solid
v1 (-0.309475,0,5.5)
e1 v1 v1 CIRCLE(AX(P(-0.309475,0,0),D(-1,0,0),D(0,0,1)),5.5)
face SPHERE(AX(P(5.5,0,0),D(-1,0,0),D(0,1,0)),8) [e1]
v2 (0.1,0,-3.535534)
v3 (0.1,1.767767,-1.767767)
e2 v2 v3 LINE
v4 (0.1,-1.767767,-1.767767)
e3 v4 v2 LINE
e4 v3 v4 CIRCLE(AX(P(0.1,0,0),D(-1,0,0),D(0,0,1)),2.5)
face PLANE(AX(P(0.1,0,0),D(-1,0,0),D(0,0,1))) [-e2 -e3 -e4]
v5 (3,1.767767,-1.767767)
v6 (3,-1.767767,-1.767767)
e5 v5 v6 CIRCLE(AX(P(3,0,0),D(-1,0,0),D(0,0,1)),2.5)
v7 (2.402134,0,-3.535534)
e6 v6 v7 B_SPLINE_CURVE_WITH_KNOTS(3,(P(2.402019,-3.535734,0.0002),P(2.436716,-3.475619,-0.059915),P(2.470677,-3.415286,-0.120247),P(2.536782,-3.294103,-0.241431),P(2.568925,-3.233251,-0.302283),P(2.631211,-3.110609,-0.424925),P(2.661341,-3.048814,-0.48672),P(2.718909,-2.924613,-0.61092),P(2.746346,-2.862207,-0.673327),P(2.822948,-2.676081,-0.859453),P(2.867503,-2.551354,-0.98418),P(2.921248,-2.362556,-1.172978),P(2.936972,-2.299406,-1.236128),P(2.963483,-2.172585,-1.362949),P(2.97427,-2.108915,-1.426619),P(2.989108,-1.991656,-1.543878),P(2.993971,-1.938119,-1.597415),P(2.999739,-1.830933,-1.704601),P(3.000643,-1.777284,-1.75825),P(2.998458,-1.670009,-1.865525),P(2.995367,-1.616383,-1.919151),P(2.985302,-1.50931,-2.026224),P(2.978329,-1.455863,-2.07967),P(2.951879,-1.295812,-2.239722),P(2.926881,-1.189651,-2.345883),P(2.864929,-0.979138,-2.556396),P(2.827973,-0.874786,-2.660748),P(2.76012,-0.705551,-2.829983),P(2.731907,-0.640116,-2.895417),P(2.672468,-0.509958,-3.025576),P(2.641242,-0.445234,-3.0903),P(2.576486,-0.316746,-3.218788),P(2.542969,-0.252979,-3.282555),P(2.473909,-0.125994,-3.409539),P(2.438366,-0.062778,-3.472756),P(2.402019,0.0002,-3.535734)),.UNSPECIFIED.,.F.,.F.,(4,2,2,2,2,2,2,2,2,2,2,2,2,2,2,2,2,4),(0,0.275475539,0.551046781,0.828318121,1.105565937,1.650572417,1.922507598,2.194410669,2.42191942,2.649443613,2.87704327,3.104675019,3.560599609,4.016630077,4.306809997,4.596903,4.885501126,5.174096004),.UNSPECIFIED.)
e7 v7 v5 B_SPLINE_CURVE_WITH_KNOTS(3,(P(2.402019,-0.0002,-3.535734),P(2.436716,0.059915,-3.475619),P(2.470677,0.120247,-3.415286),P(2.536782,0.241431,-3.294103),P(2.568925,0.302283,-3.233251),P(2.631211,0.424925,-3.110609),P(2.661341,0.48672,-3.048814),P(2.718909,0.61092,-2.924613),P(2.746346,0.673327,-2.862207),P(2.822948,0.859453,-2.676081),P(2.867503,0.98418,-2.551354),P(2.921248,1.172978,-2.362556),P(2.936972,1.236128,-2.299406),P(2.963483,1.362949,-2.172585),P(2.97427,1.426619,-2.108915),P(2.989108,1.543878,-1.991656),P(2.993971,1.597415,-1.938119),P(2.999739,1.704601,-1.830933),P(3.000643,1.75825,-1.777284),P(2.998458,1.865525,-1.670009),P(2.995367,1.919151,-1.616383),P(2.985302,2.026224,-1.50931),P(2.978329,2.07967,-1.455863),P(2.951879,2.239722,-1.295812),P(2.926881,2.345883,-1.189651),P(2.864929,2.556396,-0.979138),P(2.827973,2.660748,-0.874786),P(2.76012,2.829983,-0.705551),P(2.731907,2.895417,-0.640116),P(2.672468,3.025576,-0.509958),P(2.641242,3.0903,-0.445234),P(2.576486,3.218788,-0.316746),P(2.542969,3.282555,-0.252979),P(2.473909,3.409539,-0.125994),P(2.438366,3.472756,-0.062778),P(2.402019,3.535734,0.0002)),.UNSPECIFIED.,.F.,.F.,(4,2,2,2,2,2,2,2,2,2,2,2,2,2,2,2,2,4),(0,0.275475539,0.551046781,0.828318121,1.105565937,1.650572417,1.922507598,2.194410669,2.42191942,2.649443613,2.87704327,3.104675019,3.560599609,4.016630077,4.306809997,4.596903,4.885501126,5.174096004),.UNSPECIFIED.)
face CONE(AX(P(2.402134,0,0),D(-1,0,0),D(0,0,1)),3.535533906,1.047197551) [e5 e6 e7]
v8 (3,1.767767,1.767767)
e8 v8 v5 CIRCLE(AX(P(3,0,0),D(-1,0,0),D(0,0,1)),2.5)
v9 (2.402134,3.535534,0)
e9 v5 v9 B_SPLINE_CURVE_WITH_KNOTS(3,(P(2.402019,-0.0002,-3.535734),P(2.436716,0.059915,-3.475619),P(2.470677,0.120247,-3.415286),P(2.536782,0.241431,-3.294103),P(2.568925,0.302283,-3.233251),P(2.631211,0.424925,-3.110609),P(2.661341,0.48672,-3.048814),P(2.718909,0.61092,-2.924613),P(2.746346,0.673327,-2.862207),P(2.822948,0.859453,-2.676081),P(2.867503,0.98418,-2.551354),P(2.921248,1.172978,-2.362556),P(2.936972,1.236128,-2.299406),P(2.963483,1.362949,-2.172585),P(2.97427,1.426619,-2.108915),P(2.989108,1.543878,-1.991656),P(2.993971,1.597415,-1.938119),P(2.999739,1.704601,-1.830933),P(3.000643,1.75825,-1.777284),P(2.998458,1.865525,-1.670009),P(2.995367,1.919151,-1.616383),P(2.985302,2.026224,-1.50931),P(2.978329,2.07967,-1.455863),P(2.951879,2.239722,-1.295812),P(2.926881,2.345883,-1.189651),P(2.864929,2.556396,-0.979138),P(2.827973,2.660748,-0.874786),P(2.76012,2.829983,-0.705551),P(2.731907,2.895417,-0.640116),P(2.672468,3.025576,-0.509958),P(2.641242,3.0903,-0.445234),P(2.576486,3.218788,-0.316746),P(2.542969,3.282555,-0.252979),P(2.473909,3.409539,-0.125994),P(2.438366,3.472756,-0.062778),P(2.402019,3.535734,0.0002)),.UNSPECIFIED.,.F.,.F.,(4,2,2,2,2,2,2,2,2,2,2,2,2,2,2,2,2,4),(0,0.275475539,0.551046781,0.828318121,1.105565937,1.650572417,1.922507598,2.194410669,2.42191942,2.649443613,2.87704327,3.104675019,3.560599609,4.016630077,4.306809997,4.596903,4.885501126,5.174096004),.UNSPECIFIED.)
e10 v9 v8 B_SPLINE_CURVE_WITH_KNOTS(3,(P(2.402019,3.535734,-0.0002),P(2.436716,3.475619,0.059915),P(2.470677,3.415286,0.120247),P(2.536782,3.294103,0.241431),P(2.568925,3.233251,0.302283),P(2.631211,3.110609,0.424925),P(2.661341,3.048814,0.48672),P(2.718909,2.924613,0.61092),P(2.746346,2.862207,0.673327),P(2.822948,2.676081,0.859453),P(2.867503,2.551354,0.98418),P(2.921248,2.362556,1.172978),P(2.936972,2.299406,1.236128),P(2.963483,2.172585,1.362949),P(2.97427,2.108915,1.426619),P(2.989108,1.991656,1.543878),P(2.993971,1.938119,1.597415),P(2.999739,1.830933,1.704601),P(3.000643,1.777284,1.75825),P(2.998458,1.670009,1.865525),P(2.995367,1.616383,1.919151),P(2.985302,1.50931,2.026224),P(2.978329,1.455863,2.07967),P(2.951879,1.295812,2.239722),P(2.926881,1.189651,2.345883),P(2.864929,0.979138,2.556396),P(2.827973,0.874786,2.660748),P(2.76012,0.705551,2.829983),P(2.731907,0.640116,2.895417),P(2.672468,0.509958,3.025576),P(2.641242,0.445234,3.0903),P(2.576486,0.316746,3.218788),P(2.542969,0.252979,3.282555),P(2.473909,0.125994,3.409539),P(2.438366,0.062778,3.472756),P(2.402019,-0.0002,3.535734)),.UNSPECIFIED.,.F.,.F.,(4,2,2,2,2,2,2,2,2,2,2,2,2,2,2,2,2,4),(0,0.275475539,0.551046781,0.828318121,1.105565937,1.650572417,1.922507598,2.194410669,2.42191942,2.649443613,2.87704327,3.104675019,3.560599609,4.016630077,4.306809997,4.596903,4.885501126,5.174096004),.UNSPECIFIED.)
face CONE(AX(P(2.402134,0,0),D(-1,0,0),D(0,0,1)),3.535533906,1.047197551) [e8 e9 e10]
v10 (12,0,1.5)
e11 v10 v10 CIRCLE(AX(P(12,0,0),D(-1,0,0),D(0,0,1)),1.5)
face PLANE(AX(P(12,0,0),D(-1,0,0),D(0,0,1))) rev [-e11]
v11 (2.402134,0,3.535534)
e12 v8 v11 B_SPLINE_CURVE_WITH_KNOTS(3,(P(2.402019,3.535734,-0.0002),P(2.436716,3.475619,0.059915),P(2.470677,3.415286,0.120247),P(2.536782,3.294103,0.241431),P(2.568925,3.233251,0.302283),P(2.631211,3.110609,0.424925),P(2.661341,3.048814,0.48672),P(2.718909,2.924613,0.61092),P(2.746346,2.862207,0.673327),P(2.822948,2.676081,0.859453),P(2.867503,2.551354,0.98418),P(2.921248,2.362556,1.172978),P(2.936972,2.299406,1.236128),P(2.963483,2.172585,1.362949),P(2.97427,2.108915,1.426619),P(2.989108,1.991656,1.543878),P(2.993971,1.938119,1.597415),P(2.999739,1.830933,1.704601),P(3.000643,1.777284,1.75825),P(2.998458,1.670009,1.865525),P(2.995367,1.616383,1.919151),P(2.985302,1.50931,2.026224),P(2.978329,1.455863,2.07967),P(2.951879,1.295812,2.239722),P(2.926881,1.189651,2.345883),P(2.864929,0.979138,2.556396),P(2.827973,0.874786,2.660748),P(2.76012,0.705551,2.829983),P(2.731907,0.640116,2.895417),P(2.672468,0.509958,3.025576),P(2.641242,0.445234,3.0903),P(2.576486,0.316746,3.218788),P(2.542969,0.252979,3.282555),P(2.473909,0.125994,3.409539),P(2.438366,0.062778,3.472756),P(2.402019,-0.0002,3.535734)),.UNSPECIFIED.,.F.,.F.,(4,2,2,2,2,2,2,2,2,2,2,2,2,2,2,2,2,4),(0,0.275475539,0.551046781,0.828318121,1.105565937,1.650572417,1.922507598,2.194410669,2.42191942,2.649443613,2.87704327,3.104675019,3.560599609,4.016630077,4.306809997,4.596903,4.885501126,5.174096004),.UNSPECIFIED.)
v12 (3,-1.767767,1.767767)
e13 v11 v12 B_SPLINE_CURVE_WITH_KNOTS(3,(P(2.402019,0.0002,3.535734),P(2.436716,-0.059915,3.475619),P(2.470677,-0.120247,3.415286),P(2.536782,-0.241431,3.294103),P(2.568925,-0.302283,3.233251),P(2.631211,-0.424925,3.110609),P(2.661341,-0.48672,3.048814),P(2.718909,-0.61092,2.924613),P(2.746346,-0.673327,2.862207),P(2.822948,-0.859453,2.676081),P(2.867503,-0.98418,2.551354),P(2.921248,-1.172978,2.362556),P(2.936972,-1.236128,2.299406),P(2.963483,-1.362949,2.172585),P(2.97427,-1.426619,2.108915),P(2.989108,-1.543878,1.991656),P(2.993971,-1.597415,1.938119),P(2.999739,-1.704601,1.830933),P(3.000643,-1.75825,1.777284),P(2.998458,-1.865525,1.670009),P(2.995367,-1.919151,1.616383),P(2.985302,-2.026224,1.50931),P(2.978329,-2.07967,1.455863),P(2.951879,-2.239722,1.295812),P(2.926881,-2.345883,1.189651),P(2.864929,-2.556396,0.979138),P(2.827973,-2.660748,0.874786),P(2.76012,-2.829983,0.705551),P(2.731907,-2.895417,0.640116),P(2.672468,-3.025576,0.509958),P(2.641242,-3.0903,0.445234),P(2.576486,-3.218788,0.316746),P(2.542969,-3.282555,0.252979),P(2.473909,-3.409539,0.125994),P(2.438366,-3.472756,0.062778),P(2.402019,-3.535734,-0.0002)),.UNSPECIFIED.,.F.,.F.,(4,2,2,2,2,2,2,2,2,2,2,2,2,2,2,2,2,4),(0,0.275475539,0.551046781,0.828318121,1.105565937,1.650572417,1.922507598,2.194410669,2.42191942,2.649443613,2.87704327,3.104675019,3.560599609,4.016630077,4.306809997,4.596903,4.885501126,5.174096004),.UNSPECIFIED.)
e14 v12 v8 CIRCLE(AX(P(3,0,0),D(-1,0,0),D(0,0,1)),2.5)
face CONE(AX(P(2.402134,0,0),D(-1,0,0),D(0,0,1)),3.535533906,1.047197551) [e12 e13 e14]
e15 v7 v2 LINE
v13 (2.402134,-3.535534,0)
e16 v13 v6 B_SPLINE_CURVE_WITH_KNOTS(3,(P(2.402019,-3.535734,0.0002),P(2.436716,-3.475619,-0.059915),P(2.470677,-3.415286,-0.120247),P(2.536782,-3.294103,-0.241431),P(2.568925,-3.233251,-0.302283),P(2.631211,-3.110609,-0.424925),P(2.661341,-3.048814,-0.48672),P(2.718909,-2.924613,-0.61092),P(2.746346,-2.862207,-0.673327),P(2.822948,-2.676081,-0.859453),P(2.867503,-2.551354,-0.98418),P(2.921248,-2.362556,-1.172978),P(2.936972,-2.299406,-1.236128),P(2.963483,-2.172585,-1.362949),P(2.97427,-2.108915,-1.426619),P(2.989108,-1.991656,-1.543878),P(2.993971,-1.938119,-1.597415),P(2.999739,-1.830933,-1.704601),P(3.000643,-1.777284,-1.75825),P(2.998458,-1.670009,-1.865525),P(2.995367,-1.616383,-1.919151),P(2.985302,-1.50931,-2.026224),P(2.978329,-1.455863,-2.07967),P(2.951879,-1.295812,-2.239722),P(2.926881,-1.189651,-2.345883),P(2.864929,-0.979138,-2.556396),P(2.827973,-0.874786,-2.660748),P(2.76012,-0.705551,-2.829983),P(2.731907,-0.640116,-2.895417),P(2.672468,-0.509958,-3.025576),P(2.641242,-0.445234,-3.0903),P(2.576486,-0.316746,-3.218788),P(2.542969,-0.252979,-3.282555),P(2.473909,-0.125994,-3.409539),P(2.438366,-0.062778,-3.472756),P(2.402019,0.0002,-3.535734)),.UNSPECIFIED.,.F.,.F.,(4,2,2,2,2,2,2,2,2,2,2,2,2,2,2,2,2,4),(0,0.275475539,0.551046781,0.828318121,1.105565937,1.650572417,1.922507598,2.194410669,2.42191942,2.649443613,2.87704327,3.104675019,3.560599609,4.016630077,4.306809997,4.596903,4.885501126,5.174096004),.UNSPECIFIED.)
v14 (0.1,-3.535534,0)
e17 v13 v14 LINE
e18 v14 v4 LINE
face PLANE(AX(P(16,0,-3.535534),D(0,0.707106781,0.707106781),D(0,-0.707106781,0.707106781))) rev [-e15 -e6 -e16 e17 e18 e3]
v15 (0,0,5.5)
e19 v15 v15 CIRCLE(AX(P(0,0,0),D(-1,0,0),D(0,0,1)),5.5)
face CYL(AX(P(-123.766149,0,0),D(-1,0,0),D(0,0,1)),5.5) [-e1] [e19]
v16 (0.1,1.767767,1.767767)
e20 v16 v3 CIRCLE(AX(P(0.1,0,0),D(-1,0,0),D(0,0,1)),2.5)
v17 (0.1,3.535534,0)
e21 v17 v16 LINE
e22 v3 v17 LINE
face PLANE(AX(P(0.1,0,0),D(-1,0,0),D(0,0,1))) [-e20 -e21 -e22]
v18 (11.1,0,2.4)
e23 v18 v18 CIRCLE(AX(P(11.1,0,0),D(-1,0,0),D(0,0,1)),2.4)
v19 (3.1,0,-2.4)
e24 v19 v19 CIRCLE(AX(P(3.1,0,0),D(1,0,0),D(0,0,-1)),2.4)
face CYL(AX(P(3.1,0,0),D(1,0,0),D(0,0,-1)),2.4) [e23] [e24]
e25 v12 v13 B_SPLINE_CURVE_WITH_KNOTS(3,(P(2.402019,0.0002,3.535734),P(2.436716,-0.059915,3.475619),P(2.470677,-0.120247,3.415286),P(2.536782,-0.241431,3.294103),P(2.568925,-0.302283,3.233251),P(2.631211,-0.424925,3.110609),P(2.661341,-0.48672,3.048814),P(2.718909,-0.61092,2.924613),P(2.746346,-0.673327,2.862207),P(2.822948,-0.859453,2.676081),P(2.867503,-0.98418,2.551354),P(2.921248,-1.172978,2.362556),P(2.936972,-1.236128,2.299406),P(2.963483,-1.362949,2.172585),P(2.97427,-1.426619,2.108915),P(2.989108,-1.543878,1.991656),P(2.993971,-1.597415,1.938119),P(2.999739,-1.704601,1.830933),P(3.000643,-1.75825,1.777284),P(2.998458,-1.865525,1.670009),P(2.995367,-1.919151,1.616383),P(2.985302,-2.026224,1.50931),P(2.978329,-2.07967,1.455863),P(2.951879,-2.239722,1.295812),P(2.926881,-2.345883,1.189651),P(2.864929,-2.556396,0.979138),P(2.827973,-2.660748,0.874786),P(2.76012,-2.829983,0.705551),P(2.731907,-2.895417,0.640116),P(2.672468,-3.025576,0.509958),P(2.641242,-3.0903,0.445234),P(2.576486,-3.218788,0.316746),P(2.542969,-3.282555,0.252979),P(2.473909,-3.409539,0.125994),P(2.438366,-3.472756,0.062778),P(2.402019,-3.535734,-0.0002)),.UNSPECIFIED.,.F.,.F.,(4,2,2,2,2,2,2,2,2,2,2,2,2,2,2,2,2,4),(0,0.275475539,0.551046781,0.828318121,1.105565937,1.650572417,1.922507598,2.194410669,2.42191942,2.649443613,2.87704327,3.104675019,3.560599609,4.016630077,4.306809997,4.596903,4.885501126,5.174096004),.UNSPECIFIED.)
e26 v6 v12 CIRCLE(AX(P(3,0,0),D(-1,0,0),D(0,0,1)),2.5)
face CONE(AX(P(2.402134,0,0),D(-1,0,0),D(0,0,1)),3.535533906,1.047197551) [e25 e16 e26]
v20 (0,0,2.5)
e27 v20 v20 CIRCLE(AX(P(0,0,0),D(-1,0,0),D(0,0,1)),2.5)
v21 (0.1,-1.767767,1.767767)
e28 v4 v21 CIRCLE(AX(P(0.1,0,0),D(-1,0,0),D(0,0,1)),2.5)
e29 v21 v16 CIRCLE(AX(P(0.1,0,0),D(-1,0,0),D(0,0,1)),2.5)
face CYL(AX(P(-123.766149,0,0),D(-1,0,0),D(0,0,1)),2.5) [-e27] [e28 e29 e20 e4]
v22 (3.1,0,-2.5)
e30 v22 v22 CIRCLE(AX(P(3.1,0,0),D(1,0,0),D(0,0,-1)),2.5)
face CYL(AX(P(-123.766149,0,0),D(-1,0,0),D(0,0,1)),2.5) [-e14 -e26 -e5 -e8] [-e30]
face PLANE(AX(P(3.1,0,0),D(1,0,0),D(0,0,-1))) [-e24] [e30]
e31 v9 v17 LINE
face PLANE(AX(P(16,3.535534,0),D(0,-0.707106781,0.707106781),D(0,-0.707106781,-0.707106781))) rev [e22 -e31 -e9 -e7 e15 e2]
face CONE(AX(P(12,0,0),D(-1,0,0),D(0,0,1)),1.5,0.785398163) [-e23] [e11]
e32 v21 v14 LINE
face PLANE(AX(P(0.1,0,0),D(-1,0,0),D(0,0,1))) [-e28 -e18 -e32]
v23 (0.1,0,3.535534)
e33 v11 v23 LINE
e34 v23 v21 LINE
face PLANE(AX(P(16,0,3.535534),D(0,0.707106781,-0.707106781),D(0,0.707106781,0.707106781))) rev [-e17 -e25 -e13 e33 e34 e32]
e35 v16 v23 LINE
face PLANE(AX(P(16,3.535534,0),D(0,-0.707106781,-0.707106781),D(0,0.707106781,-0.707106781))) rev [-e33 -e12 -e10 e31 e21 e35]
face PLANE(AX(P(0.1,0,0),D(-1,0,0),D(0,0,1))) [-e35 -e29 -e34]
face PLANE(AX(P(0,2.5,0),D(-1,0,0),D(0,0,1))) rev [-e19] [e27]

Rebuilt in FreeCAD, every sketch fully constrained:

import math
import FreeCAD as App
import Part
import Sketcher

V = App.Vector
Q = App.Units.Quantity

doc = App.newDocument("Part")
body = doc.addObject("PartDesign::Body", "Body")

sketch1 = doc.addObject("Sketcher::SketchObject", "Sketch")
body.addObject(sketch1)
sketch1.AttachmentSupport = (doc.XY_Plane, [""])
sketch1.MapMode = "FlatFace"
sketch1.addGeometry(Part.LineSegment(V(12, 0, 0), V(12, 1.5, 0)), False)
sketch1.addGeometry(Part.LineSegment(V(12, 1.5, 0), V(11, 2.5, 0)), False)
sketch1.addGeometry(Part.LineSegment(V(11, 2.5, 0), V(0, 2.5, 0)), False)
sketch1.addGeometry(Part.LineSegment(V(0, 2.5, 0), V(0, 5.5, 0)), False)
sketch1.addGeometry(Part.LineSegment(V(0, 5.5, 0), V(-0.31, 5.5, 0)), False)
sketch1.addGeometry(Part.ArcOfCircle(Part.Circle(V(5.5, 0, 0), V(0, 0, 1), 8), math.radians(137), math.radians(180)), False)
sketch1.addGeometry(Part.LineSegment(V(-2.5, 0, 0), V(12, 0, 0)), False)
sketch1.addConstraint(Sketcher.Constraint("Coincident", 0, 2, 1, 1))
sketch1.addConstraint(Sketcher.Constraint("Coincident", 1, 2, 2, 1))
sketch1.addConstraint(Sketcher.Constraint("Coincident", 2, 2, 3, 1))
sketch1.addConstraint(Sketcher.Constraint("Coincident", 3, 2, 4, 1))
sketch1.addConstraint(Sketcher.Constraint("Coincident", 4, 2, 5, 1))
sketch1.addConstraint(Sketcher.Constraint("Coincident", 5, 2, 6, 1))
sketch1.addConstraint(Sketcher.Constraint("Coincident", 6, 2, 0, 1))
sketch1.addConstraint(Sketcher.Constraint("Vertical", 0))
sketch1.addConstraint(Sketcher.Constraint("Horizontal", 2))
sketch1.addConstraint(Sketcher.Constraint("Vertical", 3))
sketch1.addConstraint(Sketcher.Constraint("Horizontal", 4))
sketch1.addConstraint(Sketcher.Constraint("Horizontal", 6))
sketch1.addConstraint(Sketcher.Constraint("PointOnObject", 5, 3, -1))
sketch1.addConstraint(Sketcher.Constraint("PointOnObject", 2, 2, -2))
sketch1.addConstraint(Sketcher.Constraint("PointOnObject", 5, 2, -1))
sketch1.addConstraint(Sketcher.Constraint("Radius", 5, 8.0))
sketch1.addConstraint(Sketcher.Constraint("DistanceX", 2, 2, 2, 1, 11.0))
sketch1.addConstraint(Sketcher.Constraint("DistanceY", 3, 1, 3, 2, 3.0))
sketch1.addConstraint(Sketcher.Constraint("Angle", 1, Q("135 deg")))
sketch1.addConstraint(Sketcher.Constraint("DistanceX", 6, 1, 6, 2, 14.5))
sketch1.addConstraint(Sketcher.Constraint("DistanceY", 0, 1, 0, 2, 1.5))
sketch1.addConstraint(Sketcher.Constraint("DistanceX", -1, 1, 0, 2, 12.0))
revolution = doc.addObject("PartDesign::Revolution", "Revolution")
body.addObject(revolution)
revolution.Profile = sketch1
revolution.ReferenceAxis = (sketch1, ["H_Axis"])
revolution.Angle = 360

sketch2 = doc.addObject("Sketcher::SketchObject", "Sketch001")
body.addObject(sketch2)
sketch2.AttachmentSupport = (doc.YZ_Plane, [""])
sketch2.MapMode = "FlatFace"
sketch2.AttachmentOffset = App.Placement(V(0, 0, 0.1), App.Rotation())
sketch2.addGeometry(Part.LineSegment(V(4, 0, 0), V(0, 4, 0)), False)
sketch2.addGeometry(Part.LineSegment(V(0, 4, 0), V(-4, 0, 0)), False)
sketch2.addGeometry(Part.LineSegment(V(-4, 0, 0), V(0, -4, 0)), False)
sketch2.addGeometry(Part.LineSegment(V(0, -4, 0), V(4, 0, 0)), False)
sketch2.addConstraint(Sketcher.Constraint("Coincident", 0, 2, 1, 1))
sketch2.addConstraint(Sketcher.Constraint("Coincident", 1, 2, 2, 1))
sketch2.addConstraint(Sketcher.Constraint("Coincident", 2, 2, 3, 1))
sketch2.addConstraint(Sketcher.Constraint("Coincident", 3, 2, 0, 1))
sketch2.addConstraint(Sketcher.Constraint("Symmetric", 0, 2, 2, 2, -1, 1))
sketch2.addConstraint(Sketcher.Constraint("Symmetric", 1, 2, 3, 2, -1, 1))
sketch2.addConstraint(Sketcher.Constraint("PointOnObject", 0, 2, -2))
sketch2.addConstraint(Sketcher.Constraint("PointOnObject", 1, 2, -1))
sketch2.addConstraint(Sketcher.Constraint("Perpendicular", 0, 1))
sketch2.addConstraint(Sketcher.Constraint("Distance", 0, 5.0))
pad1 = doc.addObject("PartDesign::Pad", "Pad")
body.addObject(pad1)
pad1.Profile = sketch2
pad1.Length = 2.9
body2 = doc.addObject("PartDesign::Body", "Body001")

sketch3 = doc.addObject("Sketcher::SketchObject", "Sketch002")
body2.addObject(sketch3)
sketch3.AttachmentSupport = (doc.getObject("XY_Plane001"), [""])
sketch3.MapMode = "FlatFace"
sketch3.addGeometry(Part.LineSegment(V(2.4, 3.5, 0), V(3, 2.5, 0)), False)
sketch3.addGeometry(Part.LineSegment(V(3, 2.5, 0), V(3, 3.5, 0)), False)
sketch3.addGeometry(Part.LineSegment(V(3, 3.5, 0), V(2.4, 3.5, 0)), False)
sketch3.addConstraint(Sketcher.Constraint("Coincident", 0, 2, 1, 1))
sketch3.addConstraint(Sketcher.Constraint("Coincident", 1, 2, 2, 1))
sketch3.addConstraint(Sketcher.Constraint("Coincident", 2, 2, 0, 1))
sketch3.addConstraint(Sketcher.Constraint("Vertical", 1))
sketch3.addConstraint(Sketcher.Constraint("Horizontal", 2))
sketch3.addConstraint(Sketcher.Constraint("Angle", 0, Q("-60 deg")))
sketch3.addConstraint(Sketcher.Constraint("DistanceX", -1, 1, 0, 2, 3.0))
sketch3.addConstraint(Sketcher.Constraint("DistanceY", -1, 1, 0, 2, 2.5))
sketch3.addConstraint(Sketcher.Constraint("Distance", 0, 1.195732))
revolution2 = doc.addObject("PartDesign::Revolution", "Revolution001")
body2.addObject(revolution2)
revolution2.Profile = sketch3
revolution2.ReferenceAxis = (sketch3, ["H_Axis"])
revolution2.Angle = 360
doc.recompute()

boolean = doc.addObject("PartDesign::Boolean", "Boolean")
body.addObject(boolean)
boolean.Type = "Cut"
boolean.addObjects([body2])

sketch4 = doc.addObject("Sketcher::SketchObject", "Sketch003")
body.addObject(sketch4)
sketch4.AttachmentSupport = (doc.YZ_Plane, [""])
sketch4.MapMode = "FlatFace"
sketch4.AttachmentOffset = App.Placement(V(0, 0, 12), App.Rotation())
sketch4.addGeometry(Part.Circle(V(0, 0, 0), V(0, 0, 1), 2.5), False)
sketch4.addGeometry(Part.Circle(V(0, 0, 0), V(0, 0, 1), 2.4), False)
sketch4.addConstraint(Sketcher.Constraint("Coincident", 0, 3, -1, 1))
sketch4.addConstraint(Sketcher.Constraint("Coincident", 1, 3, -1, 1))
sketch4.addConstraint(Sketcher.Constraint("Diameter", 0, 5.0))
sketch4.addConstraint(Sketcher.Constraint("Diameter", 1, 4.8))
pocket1 = doc.addObject("PartDesign::Pocket", "Pocket")
body.addObject(pocket1)
pocket1.Profile = sketch4
pocket1.Length = 8.9

doc.recompute()
